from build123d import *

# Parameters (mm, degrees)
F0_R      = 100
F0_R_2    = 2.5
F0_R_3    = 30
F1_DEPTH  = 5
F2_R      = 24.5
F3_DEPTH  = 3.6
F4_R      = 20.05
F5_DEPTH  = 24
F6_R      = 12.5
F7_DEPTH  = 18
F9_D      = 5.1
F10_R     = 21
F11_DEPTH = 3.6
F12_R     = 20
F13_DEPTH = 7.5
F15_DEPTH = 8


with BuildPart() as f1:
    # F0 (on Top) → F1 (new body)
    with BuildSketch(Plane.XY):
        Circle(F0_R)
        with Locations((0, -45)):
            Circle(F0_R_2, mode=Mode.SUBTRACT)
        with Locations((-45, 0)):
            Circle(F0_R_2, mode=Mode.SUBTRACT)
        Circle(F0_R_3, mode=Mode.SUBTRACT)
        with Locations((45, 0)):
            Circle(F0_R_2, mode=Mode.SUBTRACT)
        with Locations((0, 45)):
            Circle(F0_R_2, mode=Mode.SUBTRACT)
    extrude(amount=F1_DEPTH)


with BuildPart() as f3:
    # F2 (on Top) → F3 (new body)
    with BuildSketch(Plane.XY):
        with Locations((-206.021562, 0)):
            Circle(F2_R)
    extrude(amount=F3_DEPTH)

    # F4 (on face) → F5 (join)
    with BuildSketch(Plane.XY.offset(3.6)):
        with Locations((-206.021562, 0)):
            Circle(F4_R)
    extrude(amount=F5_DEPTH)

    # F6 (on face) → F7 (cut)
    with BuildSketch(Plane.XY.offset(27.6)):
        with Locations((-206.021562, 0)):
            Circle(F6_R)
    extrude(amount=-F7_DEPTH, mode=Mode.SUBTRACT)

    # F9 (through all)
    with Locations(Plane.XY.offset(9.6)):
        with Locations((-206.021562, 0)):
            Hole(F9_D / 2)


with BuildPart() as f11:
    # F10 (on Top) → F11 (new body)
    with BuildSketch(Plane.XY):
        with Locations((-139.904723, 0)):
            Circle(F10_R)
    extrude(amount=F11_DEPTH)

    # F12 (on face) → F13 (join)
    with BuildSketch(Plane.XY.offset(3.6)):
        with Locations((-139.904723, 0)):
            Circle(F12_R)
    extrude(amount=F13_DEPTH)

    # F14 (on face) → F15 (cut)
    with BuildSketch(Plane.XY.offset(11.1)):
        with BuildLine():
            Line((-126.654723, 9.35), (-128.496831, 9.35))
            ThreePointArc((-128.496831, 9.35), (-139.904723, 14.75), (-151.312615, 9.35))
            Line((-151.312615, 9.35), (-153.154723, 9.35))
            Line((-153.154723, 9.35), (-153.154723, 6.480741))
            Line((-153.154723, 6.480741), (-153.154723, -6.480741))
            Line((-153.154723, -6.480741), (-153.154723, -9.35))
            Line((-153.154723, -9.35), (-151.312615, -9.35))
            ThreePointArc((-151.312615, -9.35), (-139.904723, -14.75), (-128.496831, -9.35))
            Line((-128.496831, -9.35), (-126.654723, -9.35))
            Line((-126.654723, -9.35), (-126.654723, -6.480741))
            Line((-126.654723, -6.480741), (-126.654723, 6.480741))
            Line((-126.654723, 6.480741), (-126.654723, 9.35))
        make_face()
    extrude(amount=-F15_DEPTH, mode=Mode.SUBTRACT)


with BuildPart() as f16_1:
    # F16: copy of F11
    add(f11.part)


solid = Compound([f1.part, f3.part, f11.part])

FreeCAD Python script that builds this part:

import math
import FreeCAD as App
import Part
import Sketcher
from FreeCAD import Vector
Q = App.Units.Quantity

doc = App.newDocument("Part")
body = doc.addObject("PartDesign::Body", "Body")

# Sketch on XY plane
sketch1 = doc.addObject("Sketcher::SketchObject", "Sketch")
body.addObject(sketch1)
sketch1.AttachmentSupport = (doc.XY_Plane, [""])
sketch1.MapMode = "FlatFace"
sketch1.addGeometry([
    Part.Circle(Vector(0, 0, 0), Vector(0, 0, 1), 100),  # 0
    Part.Circle(Vector(0, -45, 0), Vector(0, 0, 1), 2.5),  # 1
    Part.Circle(Vector(-45, 0, 0), Vector(0, 0, 1), 2.5),  # 2
    Part.Circle(Vector(0, 0, 0), Vector(0, 0, 1), 30),  # 3
    Part.Circle(Vector(45, 0, 0), Vector(0, 0, 1), 2.5),  # 4
    Part.Circle(Vector(0, 45, 0), Vector(0, 0, 1), 2.5),  # 5
], False)
sketch1.addConstraint([
    Sketcher.Constraint("Coincident", 0, 3, -1, 1),
    Sketcher.Constraint("Coincident", 3, 3, -1, 1),
    Sketcher.Constraint("Equal", 1, 2),
    Sketcher.Constraint("Equal", 2, 4),
    Sketcher.Constraint("Equal", 4, 5),
    Sketcher.Constraint("Symmetric", 2, 3, 4, 3, -1, 1),
    Sketcher.Constraint("Symmetric", 1, 3, 5, 3, -1, 1),
    Sketcher.Constraint("PointOnObject", 1, 3, -2),
    Sketcher.Constraint("PointOnObject", 2, 3, -1),
    Sketcher.Constraint("Diameter", 0, Q("200 mm")),
    Sketcher.Constraint("Diameter", 1, Q("5 mm")),
    Sketcher.Constraint("Diameter", 3, Q("60 mm")),
    Sketcher.Constraint("DistanceY", 1, 3, -1, 1, Q("45 mm")),
    Sketcher.Constraint("DistanceX", 2, 3, -1, 1, Q("45 mm")),
])
pad1 = doc.addObject("PartDesign::Pad", "Pad")
body.addObject(pad1)
pad1.Profile = sketch1
pad1.Length = 5
body2 = doc.addObject("PartDesign::Body", "Body001")

# Sketch on XY plane
sketch2 = doc.addObject("Sketcher::SketchObject", "Sketch001")
body2.addObject(sketch2)
sketch2.AttachmentSupport = (doc.getObject("XY_Plane001"), [""])
sketch2.MapMode = "FlatFace"
sketch2.addGeometry(Part.Circle(Vector(-206, 0, 0), Vector(0, 0, 1), 24), False)
sketch2.addConstraint([
    Sketcher.Constraint("PointOnObject", 0, 3, -1),
    Sketcher.Constraint("Diameter", 0, Q("49 mm")),
    Sketcher.Constraint("DistanceX", 0, 3, -1, 1, Q("206.021562 mm")),
])
pad2 = doc.addObject("PartDesign::Pad", "Pad001")
body2.addObject(pad2)
pad2.Profile = sketch2
pad2.Length = 3.6

# Sketch on XY plane
sketch3 = doc.addObject("Sketcher::SketchObject", "Sketch002")
body2.addObject(sketch3)
sketch3.AttachmentSupport = (doc.getObject("XY_Plane001"), [""])
sketch3.MapMode = "FlatFace"
sketch3.AttachmentOffset = App.Placement(Vector(0, 0, 3.6), App.Rotation())
sketch3.addGeometry(Part.Circle(Vector(-206, 0, 0), Vector(0, 0, 1), 20), False)
sketch3.addConstraint([
    Sketcher.Constraint("PointOnObject", 0, 3, -1),
    Sketcher.Constraint("Diameter", 0, Q("40.1 mm")),
    Sketcher.Constraint("DistanceX", 0, 3, -1, 1, Q("206.021562 mm")),
])
pad3 = doc.addObject("PartDesign::Pad", "Pad002")
body2.addObject(pad3)
pad3.Profile = sketch3
pad3.Length = 24

# Sketch on XY plane
sketch4 = doc.addObject("Sketcher::SketchObject", "Sketch003")
body2.addObject(sketch4)
sketch4.AttachmentSupport = (doc.getObject("XY_Plane001"), [""])
sketch4.MapMode = "FlatFace"
sketch4.AttachmentOffset = App.Placement(Vector(0, 0, 27.6), App.Rotation())
sketch4.addGeometry(Part.Circle(Vector(-206, 0, 0), Vector(0, 0, 1), 12), False)
sketch4.addConstraint([
    Sketcher.Constraint("PointOnObject", 0, 3, -1),
    Sketcher.Constraint("Diameter", 0, Q("25 mm")),
    Sketcher.Constraint("DistanceX", 0, 3, -1, 1, Q("206.021562 mm")),
])
pocket1 = doc.addObject("PartDesign::Pocket", "Pocket")
body2.addObject(pocket1)
pocket1.Profile = sketch4
pocket1.Length = 18

# Sketch on XY plane
sketch5 = doc.addObject("Sketcher::SketchObject", "Sketch004")
body2.addObject(sketch5)
sketch5.AttachmentSupport = (doc.getObject("XY_Plane001"), [""])
sketch5.MapMode = "FlatFace"
sketch5.AttachmentOffset = App.Placement(Vector(0, 0, 9.6), App.Rotation())
sketch5.addGeometry(Part.Circle(Vector(-206, 0, 0), Vector(0, 0, 1), 2.5), False)
sketch5.addConstraint([
    Sketcher.Constraint("PointOnObject", 0, 3, -1),
    Sketcher.Constraint("Diameter", 0, Q("5.1 mm")),
    Sketcher.Constraint("DistanceX", 0, 3, -1, 1, Q("206.021562 mm")),
])
doc.recompute()
hole = doc.addObject("PartDesign::Hole", "Hole")
body2.addObject(hole)
hole.Profile = sketch5
hole.ThreadType = "None"
hole.Diameter = 5.1
hole.DepthType = "ThroughAll"
body3 = doc.addObject("PartDesign::Body", "Body002")

# Sketch on XY plane
sketch6 = doc.addObject("Sketcher::SketchObject", "Sketch005")
body3.addObject(sketch6)
sketch6.AttachmentSupport = (doc.getObject("XY_Plane002"), [""])
sketch6.MapMode = "FlatFace"
sketch6.addGeometry(Part.Circle(Vector(-140, 0, 0), Vector(0, 0, 1), 21), False)
sketch6.addConstraint([
    Sketcher.Constraint("PointOnObject", 0, 3, -1),
    Sketcher.Constraint("Diameter", 0, Q("42 mm")),
    Sketcher.Constraint("DistanceX", 0, 3, -1, 1, Q("139.904723 mm")),
])
pad4 = doc.addObject("PartDesign::Pad", "Pad003")
body3.addObject(pad4)
pad4.Profile = sketch6
pad4.Length = 3.6

# Sketch on XY plane
sketch7 = doc.addObject("Sketcher::SketchObject", "Sketch006")
body3.addObject(sketch7)
sketch7.AttachmentSupport = (doc.getObject("XY_Plane002"), [""])
sketch7.MapMode = "FlatFace"
sketch7.AttachmentOffset = App.Placement(Vector(0, 0, 3.6), App.Rotation())
sketch7.addGeometry(Part.Circle(Vector(-140, 0, 0), Vector(0, 0, 1), 20), False)
sketch7.addConstraint([
    Sketcher.Constraint("PointOnObject", 0, 3, -1),
    Sketcher.Constraint("Diameter", 0, Q("40 mm")),
    Sketcher.Constraint("DistanceX", 0, 3, -1, 1, Q("139.904723 mm")),
])
pad5 = doc.addObject("PartDesign::Pad", "Pad004")
body3.addObject(pad5)
pad5.Profile = sketch7
pad5.Length = 7.5

# Sketch on XY plane
sketch8 = doc.addObject("Sketcher::SketchObject", "Sketch007")
body3.addObject(sketch8)
sketch8.AttachmentSupport = (doc.getObject("XY_Plane002"), [""])
sketch8.MapMode = "FlatFace"
sketch8.AttachmentOffset = App.Placement(Vector(0, 0, 11.1), App.Rotation())
sketch8.addGeometry([
    Part.LineSegment(Vector(-126.7, 9.3, 0), Vector(-128.5, 9.3, 0)),  # 0
    Part.ArcOfCircle(Part.Circle(Vector(-139.9, 0, 0), Vector(0, 0, 1), 14.7), math.radians(39), math.radians(141)),  # 1
    Part.LineSegment(Vector(-151.3, 9.3, 0), Vector(-153.2, 9.3, 0)),  # 2
    Part.LineSegment(Vector(-153.2, 9.3, 0), Vector(-153.2, -9.3, 0)),  # 3
    Part.LineSegment(Vector(-153.2, -9.3, 0), Vector(-151.3, -9.3, 0)),  # 4
    Part.ArcOfCircle(Part.Circle(Vector(-139.9, 0, 0), Vector(0, 0, 1), 14.7), math.radians(-141), math.radians(-39)),  # 5
    Part.LineSegment(Vector(-128.5, -9.3, 0), Vector(-126.7, -9.3, 0)),  # 6
    Part.LineSegment(Vector(-126.7, -9.3, 0), Vector(-126.7, 9.3, 0)),  # 7
], False)
sketch8.addConstraint([
    Sketcher.Constraint("Coincident", 0, 2, 1, 1),
    Sketcher.Constraint("Coincident", 1, 2, 2, 1),
    Sketcher.Constraint("Coincident", 2, 2, 3, 1),
    Sketcher.Constraint("Coincident", 3, 2, 4, 1),
    Sketcher.Constraint("Coincident", 4, 2, 5, 1),
    Sketcher.Constraint("Coincident", 5, 2, 6, 1),
    Sketcher.Constraint("Coincident", 6, 2, 7, 1),
    Sketcher.Constraint("Coincident", 7, 2, 0, 1),
    Sketcher.Constraint("Horizontal", 0),
    Sketcher.Constraint("Horizontal", 2),
    Sketcher.Constraint("Vertical", 3),
    Sketcher.Constraint("Horizontal", 4),
    Sketcher.Constraint("Horizontal", 6),
    Sketcher.Constraint("Vertical", 7),
    Sketcher.Constraint("Coincident", 5, 3, 1, 3),
    Sketcher.Constraint("Equal", 1, 5),
    Sketcher.Constraint("Symmetric", 1, 2, 4, 2, -1),
    Sketcher.Constraint("Horizontal", 0, 2, 1, 2),
    Sketcher.Constraint("Horizontal", 4, 2, 5, 2),
    Sketcher.Constraint("Equal", 0, 2),
    Sketcher.Constraint("Radius", 1, Q("14.75 mm")),
    Sketcher.Constraint("DistanceY", 3, 2, 3, 1, Q("18.7 mm")),
    Sketcher.Constraint("DistanceX", 2, 2, 1, 3, Q("13.25 mm")),
    Sketcher.Constraint("DistanceX", 0, 2, -1, 1, Q("128.496831 mm")),
])
pocket2 = doc.addObject("PartDesign::Pocket", "Pocket001")
body3.addObject(pocket2)
pocket2.Profile = sketch8
pocket2.Length = 8
body4 = doc.addObject("PartDesign::Body", "Body003")
doc.recompute()

body4.BaseFeature = body3
doc.recompute()
body3.Visibility = False

doc.recompute()
